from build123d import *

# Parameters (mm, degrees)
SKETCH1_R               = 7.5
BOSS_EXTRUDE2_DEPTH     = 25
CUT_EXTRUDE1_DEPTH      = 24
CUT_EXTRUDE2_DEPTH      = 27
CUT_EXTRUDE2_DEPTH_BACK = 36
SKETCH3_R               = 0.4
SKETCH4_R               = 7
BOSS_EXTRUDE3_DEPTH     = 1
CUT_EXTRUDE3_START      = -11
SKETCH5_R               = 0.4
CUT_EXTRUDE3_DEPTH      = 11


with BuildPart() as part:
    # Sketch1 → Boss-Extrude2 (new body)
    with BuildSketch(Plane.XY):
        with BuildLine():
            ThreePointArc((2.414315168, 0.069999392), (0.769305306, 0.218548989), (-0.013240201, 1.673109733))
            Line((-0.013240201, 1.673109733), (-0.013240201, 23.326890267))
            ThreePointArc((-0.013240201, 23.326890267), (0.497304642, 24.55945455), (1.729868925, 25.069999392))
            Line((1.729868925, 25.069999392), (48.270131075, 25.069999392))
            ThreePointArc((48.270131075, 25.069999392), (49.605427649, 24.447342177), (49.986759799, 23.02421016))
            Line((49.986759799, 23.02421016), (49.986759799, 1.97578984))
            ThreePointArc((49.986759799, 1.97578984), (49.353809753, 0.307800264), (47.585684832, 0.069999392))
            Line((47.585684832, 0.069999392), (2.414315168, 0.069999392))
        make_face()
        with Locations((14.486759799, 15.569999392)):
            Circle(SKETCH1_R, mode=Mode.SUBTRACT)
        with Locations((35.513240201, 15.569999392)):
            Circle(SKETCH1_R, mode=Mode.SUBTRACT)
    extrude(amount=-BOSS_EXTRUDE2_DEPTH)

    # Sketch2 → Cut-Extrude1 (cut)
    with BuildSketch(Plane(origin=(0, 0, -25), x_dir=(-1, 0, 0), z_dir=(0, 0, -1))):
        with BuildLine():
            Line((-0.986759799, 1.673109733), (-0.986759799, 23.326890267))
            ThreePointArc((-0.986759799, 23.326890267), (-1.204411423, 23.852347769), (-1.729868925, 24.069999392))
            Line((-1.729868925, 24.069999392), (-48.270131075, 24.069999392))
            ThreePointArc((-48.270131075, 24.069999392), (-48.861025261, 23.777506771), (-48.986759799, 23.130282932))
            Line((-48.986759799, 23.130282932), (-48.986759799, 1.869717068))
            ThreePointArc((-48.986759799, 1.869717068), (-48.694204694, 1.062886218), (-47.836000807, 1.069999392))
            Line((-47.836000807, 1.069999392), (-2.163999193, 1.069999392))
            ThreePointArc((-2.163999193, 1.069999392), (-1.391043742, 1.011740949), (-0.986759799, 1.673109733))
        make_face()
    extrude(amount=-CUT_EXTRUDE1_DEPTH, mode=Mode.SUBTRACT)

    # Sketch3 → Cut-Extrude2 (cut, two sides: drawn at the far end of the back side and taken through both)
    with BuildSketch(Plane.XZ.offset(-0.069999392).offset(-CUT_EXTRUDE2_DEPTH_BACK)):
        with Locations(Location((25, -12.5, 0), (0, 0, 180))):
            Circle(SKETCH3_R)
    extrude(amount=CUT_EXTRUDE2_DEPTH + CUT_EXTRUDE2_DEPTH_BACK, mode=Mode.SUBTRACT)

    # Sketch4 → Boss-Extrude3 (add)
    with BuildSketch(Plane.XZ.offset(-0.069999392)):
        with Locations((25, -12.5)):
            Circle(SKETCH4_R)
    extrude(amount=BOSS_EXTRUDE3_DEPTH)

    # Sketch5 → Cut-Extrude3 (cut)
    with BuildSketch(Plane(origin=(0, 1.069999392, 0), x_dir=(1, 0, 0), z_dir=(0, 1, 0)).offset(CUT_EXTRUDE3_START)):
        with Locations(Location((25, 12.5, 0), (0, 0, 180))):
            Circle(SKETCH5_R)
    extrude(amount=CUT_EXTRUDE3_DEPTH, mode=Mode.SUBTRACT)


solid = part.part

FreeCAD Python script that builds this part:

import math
import FreeCAD as App
import Part
import Sketcher

V = App.Vector
Q = App.Units.Quantity

doc = App.newDocument("Part")
body = doc.addObject("PartDesign::Body", "Body")

# Sketch on XY plane
sketch1 = body.newObject("Sketcher::SketchObject", "Sketch")
sketch1.AttachmentSupport = (doc.getObject("XY_Plane"), [""])
sketch1.MapMode = "FlatFace"
sketch1.addGeometry([
    Part.ArcOfCircle(Part.Circle(V(1.729869, 1.67311, 0), V(0, 0, 1), 1.743109), math.radians(-180), math.radians(-66.879993)),  # 0
    Part.LineSegment(V(2.414315, 0.069999, 0), V(47.585685, 0.069999, 0)),  # 1
    Part.ArcOfCircle(Part.Circle(V(48.270131, 1.67311, 0), V(0, 0, 1), 1.743109), math.radians(-113.120007), math.radians(9.999746)),  # 2
    Part.LineSegment(V(49.98676, 1.97579, 0), V(49.98676, 23.02421, 0)),  # 3
    Part.ArcOfCircle(Part.Circle(V(48.270131, 23.32689, 0), V(0, 0, 1), 1.743109), math.radians(-9.999746), math.radians(90)),  # 4
    Part.LineSegment(V(48.270131, 25.069999, 0), V(1.729869, 25.069999, 0)),  # 5
    Part.ArcOfCircle(Part.Circle(V(1.729869, 23.32689, 0), V(0, 0, 1), 1.743109), math.radians(90), math.radians(180)),  # 6
    Part.LineSegment(V(-0.01324, 23.32689, 0), V(-0.01324, 1.67311, 0)),  # 7
    Part.Circle(V(35.51324, 15.569999, 0), V(0, 0, 1), 7.5),  # 8
    Part.Circle(V(14.48676, 15.569999, 0), V(0, 0, 1), 7.5),  # 9
], False)
sketch1.addConstraint([
    Sketcher.Constraint("Coincident", 0, 2, 1, 1),
    Sketcher.Constraint("Coincident", 1, 2, 2, 1),
    Sketcher.Constraint("Coincident", 2, 2, 3, 1),
    Sketcher.Constraint("Coincident", 3, 2, 4, 1),
    Sketcher.Constraint("Tangent", 4, 2, 5, 1),
    Sketcher.Constraint("Tangent", 5, 2, 6, 1),
    Sketcher.Constraint("Tangent", 6, 2, 7, 1),
    Sketcher.Constraint("Tangent", 7, 2, 0, 1),
    Sketcher.Constraint("Horizontal", 1),
    Sketcher.Constraint("Vertical", 3),
    Sketcher.Constraint("Horizontal", 5),
    Sketcher.Constraint("Vertical", 7),
    Sketcher.Constraint("Equal", 0, 2),
    Sketcher.Constraint("Equal", 2, 4),
    Sketcher.Constraint("Equal", 4, 6),
    Sketcher.Constraint("Equal", 8, 9),
    Sketcher.Constraint("Horizontal", 0, 3, 2, 3),
    Sketcher.Constraint("Horizontal", 8, 3, 9, 3),
    Sketcher.Constraint("Vertical", 2, 3, 4, 3),
    Sketcher.Constraint("Diameter", 8, Q("15 mm")),
    Sketcher.Constraint("DistanceY", 0, 2, 5, 2, Q("25 mm")),
    Sketcher.Constraint("DistanceY", 0, 2, 9, 3, Q("15.5 mm")),
    Sketcher.Constraint("DistanceX", 9, 3, 2, 2, Q("35.5 mm")),
    Sketcher.Constraint("DistanceX", 6, 2, 9, 3, Q("14.5 mm")),
    Sketcher.Constraint("DistanceY", -1, 1, 8, 3, Q("15.569999 mm")),
    Sketcher.Constraint("Radius", 0, Q("1.743109 mm")),
    Sketcher.Constraint("DistanceX", 1, 1, 1, 2, Q("45.17137 mm")),
    Sketcher.Constraint("DistanceY", 3, 1, 3, 2, Q("21.04842 mm")),
    Sketcher.Constraint("DistanceX", -1, 1, 0, 3, Q("1.729869 mm")),
    Sketcher.Constraint("DistanceX", -1, 1, 8, 3, Q("35.51324 mm")),
])
pad1 = body.newObject("PartDesign::Pad", "Pad")
pad1.Profile = sketch1
pad1.Length = 25
pad1.Reversed = True

# Sketch on XY plane
sketch2 = body.newObject("Sketcher::SketchObject", "Sketch001")
sketch2.AttachmentSupport = (doc.getObject("XY_Plane"), [""])
sketch2.MapMode = "FlatFace"
sketch2.AttachmentOffset = App.Placement(V(0, 0, -25), App.Rotation())
sketch2.addGeometry([
    Part.LineSegment(V(0.98676, 1.67311, 0), V(0.98676, 23.32689, 0)),  # 0
    Part.ArcOfCircle(Part.Circle(V(1.729869, 23.32689, 0), V(0, 0, 1), 0.743109), math.radians(90), math.radians(180)),  # 1
    Part.LineSegment(V(1.729869, 24.069999, 0), V(48.270131, 24.069999, 0)),  # 2
    Part.ArcOfCircle(Part.Circle(V(48.270131, 23.32689, 0), V(0, 0, 1), 0.743109), math.radians(-15.34164), math.radians(90)),  # 3
    Part.LineSegment(V(48.98676, 23.130283, 0), V(48.98676, 1.869717, 0)),  # 4
    Part.ArcOfCircle(Part.Circle(V(48.270131, 1.67311, 0), V(0, 0, 1), 0.743109), math.radians(-125.747056), math.radians(15.34164)),  # 5
    Part.LineSegment(V(47.836001, 1.069999, 0), V(2.163999, 1.069999, 0)),  # 6
    Part.ArcOfCircle(Part.Circle(V(1.729869, 1.67311, 0), V(0, 0, 1), 0.743109), math.radians(180), math.radians(305.747056)),  # 7
], False)
sketch2.addConstraint([
    Sketcher.Constraint("Tangent", 0, 2, 1, 2),
    Sketcher.Constraint("Tangent", 1, 1, 2, 1),
    Sketcher.Constraint("Tangent", 2, 2, 3, 2),
    Sketcher.Constraint("Coincident", 3, 1, 4, 1),
    Sketcher.Constraint("Coincident", 4, 2, 5, 2),
    Sketcher.Constraint("Coincident", 5, 1, 6, 1),
    Sketcher.Constraint("Coincident", 6, 2, 7, 2),
    Sketcher.Constraint("Tangent", 7, 1, 0, 1),
    Sketcher.Constraint("Vertical", 0),
    Sketcher.Constraint("Horizontal", 2),
    Sketcher.Constraint("Vertical", 4),
    Sketcher.Constraint("Horizontal", 6),
    Sketcher.Constraint("Equal", 1, 3),
    Sketcher.Constraint("Equal", 3, 5),
    Sketcher.Constraint("Equal", 5, 7),
    Sketcher.Constraint("Horizontal", 5, 3, 7, 3),
    Sketcher.Constraint("Vertical", 3, 3, 5, 3),
    Sketcher.Constraint("DistanceY", 5, 1, 2, 2, Q("23 mm")),
    Sketcher.Constraint("DistanceX", 6, 2, 6, 1, Q("45.672002 mm")),
    Sketcher.Constraint("DistanceY", -1, 1, 1, 1, Q("24.069999 mm")),
    Sketcher.Constraint("Radius", 1, Q("0.743109 mm")),
    Sketcher.Constraint("DistanceX", -1, 1, 5, 1, Q("47.836001 mm")),
    Sketcher.Constraint("DistanceY", 0, 1, 0, 2, Q("21.653781 mm")),
    Sketcher.Constraint("DistanceY", 4, 2, 4, 1, Q("21.260566 mm")),
])
pocket1 = body.newObject("PartDesign::Pocket", "Pocket")
pocket1.Profile = sketch2
pocket1.Length = 24
pocket1.Reversed = True

# Sketch on XZ plane
sketch3 = body.newObject("Sketcher::SketchObject", "Sketch002")
sketch3.AttachmentSupport = (doc.getObject("XZ_Plane"), [""])
sketch3.MapMode = "FlatFace"
sketch3.AttachmentOffset = App.Placement(V(0, 0, -0.069999), App.Rotation())
sketch3.addGeometry(Part.Circle(V(25, -12.5, 0), V(0, 0, 1), 0.4), False)
sketch3.addConstraint([
    Sketcher.Constraint("Diameter", 0, Q("0.8 mm")),
    Sketcher.Constraint("DistanceX", -1, 1, 0, 3, Q("25 mm")),
    Sketcher.Constraint("DistanceY", 0, 3, -1, 1, Q("12.5 mm")),
])
pocket2 = body.newObject("PartDesign::Pocket", "Pocket001")
pocket2.Profile = sketch3
pocket2.Type = "ThroughAll"
pocket2.Midplane = True

# Sketch on XZ plane
sketch4 = body.newObject("Sketcher::SketchObject", "Sketch003")
sketch4.AttachmentSupport = (doc.getObject("XZ_Plane"), [""])
sketch4.MapMode = "FlatFace"
sketch4.AttachmentOffset = App.Placement(V(0, 0, -0.069999), App.Rotation())
sketch4.addGeometry(Part.Circle(V(25, -12.5, 0), V(0, 0, 1), 7), False)
sketch4.addConstraint([
    Sketcher.Constraint("Diameter", 0, Q("14 mm")),
    Sketcher.Constraint("DistanceX", -1, 1, 0, 3, Q("25 mm")),
    Sketcher.Constraint("DistanceY", 0, 3, -1, 1, Q("12.5 mm")),
])
pad2 = body.newObject("PartDesign::Pad", "Pad001")
pad2.Profile = sketch4
pad2.Length = 1

# Sketch on XZ plane
sketch5 = body.newObject("Sketcher::SketchObject", "Sketch004")
sketch5.AttachmentSupport = (doc.getObject("XZ_Plane"), [""])
sketch5.MapMode = "FlatFace"
sketch5.AttachmentOffset = App.Placement(V(0, 0, 9.930001), App.Rotation())
sketch5.addGeometry(Part.Circle(V(25, -12.5, 0), V(0, 0, 1), 0.4), False)
sketch5.addConstraint([
    Sketcher.Constraint("Diameter", 0, Q("0.8 mm")),
    Sketcher.Constraint("DistanceX", -1, 1, 0, 3, Q("25 mm")),
    Sketcher.Constraint("DistanceY", 0, 3, -1, 1, Q("12.5 mm")),
])
pocket3 = body.newObject("PartDesign::Pocket", "Pocket002")
pocket3.Profile = sketch5
pocket3.Length = 11

doc.recompute()
